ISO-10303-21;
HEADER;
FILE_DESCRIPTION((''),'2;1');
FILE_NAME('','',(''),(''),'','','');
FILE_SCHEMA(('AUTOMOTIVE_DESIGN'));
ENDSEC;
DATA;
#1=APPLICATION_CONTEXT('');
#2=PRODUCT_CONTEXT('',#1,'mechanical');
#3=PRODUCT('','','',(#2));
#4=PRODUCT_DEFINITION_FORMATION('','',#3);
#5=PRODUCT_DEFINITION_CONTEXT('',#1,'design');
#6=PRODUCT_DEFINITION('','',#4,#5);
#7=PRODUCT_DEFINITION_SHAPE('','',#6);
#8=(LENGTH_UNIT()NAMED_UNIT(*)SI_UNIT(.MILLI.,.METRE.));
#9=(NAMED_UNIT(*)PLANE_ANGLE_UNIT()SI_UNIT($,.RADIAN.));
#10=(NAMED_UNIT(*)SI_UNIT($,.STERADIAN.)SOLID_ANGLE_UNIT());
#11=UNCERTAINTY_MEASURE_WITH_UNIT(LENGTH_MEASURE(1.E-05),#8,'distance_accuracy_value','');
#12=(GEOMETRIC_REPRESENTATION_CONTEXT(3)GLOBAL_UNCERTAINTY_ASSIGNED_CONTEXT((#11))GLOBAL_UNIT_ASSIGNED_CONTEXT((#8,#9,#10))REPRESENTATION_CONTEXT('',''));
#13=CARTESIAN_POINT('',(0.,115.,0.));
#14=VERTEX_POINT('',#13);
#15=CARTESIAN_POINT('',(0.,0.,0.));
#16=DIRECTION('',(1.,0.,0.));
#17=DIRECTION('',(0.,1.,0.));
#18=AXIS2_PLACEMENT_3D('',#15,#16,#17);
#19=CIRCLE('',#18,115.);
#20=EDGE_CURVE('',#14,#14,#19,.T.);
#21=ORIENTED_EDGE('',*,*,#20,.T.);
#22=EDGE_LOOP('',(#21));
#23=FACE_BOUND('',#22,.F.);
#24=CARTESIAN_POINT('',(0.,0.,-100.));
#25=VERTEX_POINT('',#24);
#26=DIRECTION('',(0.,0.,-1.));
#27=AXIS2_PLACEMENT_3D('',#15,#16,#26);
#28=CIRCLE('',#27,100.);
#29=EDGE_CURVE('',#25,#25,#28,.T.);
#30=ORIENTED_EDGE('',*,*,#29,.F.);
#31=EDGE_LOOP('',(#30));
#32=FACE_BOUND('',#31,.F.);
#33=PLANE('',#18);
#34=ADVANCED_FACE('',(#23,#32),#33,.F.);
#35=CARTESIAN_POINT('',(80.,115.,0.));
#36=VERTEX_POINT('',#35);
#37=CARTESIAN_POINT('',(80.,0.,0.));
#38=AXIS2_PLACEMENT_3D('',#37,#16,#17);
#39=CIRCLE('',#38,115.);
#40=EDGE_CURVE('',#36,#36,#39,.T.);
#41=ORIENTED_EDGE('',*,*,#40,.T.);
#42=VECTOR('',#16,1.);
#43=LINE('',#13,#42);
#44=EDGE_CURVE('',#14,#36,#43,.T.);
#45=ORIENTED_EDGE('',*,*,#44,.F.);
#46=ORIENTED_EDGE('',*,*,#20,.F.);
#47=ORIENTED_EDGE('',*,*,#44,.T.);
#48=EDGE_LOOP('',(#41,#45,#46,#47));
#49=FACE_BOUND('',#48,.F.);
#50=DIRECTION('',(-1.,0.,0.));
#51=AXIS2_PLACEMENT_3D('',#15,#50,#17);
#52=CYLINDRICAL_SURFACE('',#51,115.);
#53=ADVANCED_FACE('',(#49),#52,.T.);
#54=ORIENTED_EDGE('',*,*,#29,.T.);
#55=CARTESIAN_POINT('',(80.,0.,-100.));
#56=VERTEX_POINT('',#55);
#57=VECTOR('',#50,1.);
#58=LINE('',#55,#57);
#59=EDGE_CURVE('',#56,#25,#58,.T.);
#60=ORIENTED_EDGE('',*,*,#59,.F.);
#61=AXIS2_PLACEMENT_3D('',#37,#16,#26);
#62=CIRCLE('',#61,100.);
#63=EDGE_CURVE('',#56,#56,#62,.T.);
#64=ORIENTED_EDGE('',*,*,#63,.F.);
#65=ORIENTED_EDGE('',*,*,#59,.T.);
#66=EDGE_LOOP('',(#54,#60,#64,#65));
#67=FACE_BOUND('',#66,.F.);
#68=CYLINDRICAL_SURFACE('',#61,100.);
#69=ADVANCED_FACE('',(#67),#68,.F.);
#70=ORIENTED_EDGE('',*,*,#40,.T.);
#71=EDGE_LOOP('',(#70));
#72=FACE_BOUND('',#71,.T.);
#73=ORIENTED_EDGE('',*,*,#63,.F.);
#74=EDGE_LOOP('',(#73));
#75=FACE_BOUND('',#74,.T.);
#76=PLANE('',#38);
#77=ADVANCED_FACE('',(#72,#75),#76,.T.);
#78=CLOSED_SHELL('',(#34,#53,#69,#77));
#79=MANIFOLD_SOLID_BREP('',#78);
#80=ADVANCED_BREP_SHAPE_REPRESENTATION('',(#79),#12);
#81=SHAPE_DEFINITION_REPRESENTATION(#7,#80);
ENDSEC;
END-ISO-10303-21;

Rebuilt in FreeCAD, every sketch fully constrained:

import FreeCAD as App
import Part
import Sketcher

doc = App.newDocument("Part")
params = doc.addObject("Spreadsheet::Sheet", "Params")
for row, (alias, value) in enumerate([
    ("sketch1_diameter", "230 mm"),
    ("pad1_length", "80 mm"),
    ("sketch2_diameter", "200 mm"),
    ("pocket1_length", "80 mm"),
], start=1):
    params.set(f"A{row}", alias)
    params.set(f"B{row}", "=" + value)
    params.setAlias(f"B{row}", alias)

body = doc.addObject("PartDesign::Body", "Body")

sketch1 = doc.addObject("Sketcher::SketchObject", "Sketch")
body.addObject(sketch1)
sketch1.AttachmentSupport = (doc.YZ_Plane, [""])
sketch1.MapMode = "FlatFace"
sketch1.addGeometry(Part.Circle(App.Vector(0, 0, 0), App.Vector(0, 0, 1), 115), False)
sketch1.addConstraint([
    Sketcher.Constraint("Coincident", 0, 3, -1, 1),
    Sketcher.Constraint("Diameter", 0, 230.0),
])
sketch1.setExpression("Constraints[1]", "Params.sketch1_diameter")
pad1 = doc.addObject("PartDesign::Pad", "Pad")
body.addObject(pad1)
pad1.Profile = sketch1
pad1.setExpression("Length", "Params.pad1_length")

sketch2 = doc.addObject("Sketcher::SketchObject", "Sketch001")
body.addObject(sketch2)
sketch2.AttachmentSupport = (doc.YZ_Plane, [""])
sketch2.MapMode = "FlatFace"
sketch2.AttachmentOffset = App.Placement(App.Vector(0, 0, 80), App.Rotation())
sketch2.addGeometry(Part.Circle(App.Vector(0, 0, 0), App.Vector(0, 0, 1), 100), False)
sketch2.addConstraint([
    Sketcher.Constraint("Coincident", 0, 3, -1, 1),
    Sketcher.Constraint("Diameter", 0, 200.0),
])
sketch2.setExpression("Constraints[1]", "Params.sketch2_diameter")
pocket1 = doc.addObject("PartDesign::Pocket", "Pocket")
body.addObject(pocket1)
pocket1.Profile = sketch2
pocket1.setExpression("Length", "Params.pocket1_length")

doc.recompute()
